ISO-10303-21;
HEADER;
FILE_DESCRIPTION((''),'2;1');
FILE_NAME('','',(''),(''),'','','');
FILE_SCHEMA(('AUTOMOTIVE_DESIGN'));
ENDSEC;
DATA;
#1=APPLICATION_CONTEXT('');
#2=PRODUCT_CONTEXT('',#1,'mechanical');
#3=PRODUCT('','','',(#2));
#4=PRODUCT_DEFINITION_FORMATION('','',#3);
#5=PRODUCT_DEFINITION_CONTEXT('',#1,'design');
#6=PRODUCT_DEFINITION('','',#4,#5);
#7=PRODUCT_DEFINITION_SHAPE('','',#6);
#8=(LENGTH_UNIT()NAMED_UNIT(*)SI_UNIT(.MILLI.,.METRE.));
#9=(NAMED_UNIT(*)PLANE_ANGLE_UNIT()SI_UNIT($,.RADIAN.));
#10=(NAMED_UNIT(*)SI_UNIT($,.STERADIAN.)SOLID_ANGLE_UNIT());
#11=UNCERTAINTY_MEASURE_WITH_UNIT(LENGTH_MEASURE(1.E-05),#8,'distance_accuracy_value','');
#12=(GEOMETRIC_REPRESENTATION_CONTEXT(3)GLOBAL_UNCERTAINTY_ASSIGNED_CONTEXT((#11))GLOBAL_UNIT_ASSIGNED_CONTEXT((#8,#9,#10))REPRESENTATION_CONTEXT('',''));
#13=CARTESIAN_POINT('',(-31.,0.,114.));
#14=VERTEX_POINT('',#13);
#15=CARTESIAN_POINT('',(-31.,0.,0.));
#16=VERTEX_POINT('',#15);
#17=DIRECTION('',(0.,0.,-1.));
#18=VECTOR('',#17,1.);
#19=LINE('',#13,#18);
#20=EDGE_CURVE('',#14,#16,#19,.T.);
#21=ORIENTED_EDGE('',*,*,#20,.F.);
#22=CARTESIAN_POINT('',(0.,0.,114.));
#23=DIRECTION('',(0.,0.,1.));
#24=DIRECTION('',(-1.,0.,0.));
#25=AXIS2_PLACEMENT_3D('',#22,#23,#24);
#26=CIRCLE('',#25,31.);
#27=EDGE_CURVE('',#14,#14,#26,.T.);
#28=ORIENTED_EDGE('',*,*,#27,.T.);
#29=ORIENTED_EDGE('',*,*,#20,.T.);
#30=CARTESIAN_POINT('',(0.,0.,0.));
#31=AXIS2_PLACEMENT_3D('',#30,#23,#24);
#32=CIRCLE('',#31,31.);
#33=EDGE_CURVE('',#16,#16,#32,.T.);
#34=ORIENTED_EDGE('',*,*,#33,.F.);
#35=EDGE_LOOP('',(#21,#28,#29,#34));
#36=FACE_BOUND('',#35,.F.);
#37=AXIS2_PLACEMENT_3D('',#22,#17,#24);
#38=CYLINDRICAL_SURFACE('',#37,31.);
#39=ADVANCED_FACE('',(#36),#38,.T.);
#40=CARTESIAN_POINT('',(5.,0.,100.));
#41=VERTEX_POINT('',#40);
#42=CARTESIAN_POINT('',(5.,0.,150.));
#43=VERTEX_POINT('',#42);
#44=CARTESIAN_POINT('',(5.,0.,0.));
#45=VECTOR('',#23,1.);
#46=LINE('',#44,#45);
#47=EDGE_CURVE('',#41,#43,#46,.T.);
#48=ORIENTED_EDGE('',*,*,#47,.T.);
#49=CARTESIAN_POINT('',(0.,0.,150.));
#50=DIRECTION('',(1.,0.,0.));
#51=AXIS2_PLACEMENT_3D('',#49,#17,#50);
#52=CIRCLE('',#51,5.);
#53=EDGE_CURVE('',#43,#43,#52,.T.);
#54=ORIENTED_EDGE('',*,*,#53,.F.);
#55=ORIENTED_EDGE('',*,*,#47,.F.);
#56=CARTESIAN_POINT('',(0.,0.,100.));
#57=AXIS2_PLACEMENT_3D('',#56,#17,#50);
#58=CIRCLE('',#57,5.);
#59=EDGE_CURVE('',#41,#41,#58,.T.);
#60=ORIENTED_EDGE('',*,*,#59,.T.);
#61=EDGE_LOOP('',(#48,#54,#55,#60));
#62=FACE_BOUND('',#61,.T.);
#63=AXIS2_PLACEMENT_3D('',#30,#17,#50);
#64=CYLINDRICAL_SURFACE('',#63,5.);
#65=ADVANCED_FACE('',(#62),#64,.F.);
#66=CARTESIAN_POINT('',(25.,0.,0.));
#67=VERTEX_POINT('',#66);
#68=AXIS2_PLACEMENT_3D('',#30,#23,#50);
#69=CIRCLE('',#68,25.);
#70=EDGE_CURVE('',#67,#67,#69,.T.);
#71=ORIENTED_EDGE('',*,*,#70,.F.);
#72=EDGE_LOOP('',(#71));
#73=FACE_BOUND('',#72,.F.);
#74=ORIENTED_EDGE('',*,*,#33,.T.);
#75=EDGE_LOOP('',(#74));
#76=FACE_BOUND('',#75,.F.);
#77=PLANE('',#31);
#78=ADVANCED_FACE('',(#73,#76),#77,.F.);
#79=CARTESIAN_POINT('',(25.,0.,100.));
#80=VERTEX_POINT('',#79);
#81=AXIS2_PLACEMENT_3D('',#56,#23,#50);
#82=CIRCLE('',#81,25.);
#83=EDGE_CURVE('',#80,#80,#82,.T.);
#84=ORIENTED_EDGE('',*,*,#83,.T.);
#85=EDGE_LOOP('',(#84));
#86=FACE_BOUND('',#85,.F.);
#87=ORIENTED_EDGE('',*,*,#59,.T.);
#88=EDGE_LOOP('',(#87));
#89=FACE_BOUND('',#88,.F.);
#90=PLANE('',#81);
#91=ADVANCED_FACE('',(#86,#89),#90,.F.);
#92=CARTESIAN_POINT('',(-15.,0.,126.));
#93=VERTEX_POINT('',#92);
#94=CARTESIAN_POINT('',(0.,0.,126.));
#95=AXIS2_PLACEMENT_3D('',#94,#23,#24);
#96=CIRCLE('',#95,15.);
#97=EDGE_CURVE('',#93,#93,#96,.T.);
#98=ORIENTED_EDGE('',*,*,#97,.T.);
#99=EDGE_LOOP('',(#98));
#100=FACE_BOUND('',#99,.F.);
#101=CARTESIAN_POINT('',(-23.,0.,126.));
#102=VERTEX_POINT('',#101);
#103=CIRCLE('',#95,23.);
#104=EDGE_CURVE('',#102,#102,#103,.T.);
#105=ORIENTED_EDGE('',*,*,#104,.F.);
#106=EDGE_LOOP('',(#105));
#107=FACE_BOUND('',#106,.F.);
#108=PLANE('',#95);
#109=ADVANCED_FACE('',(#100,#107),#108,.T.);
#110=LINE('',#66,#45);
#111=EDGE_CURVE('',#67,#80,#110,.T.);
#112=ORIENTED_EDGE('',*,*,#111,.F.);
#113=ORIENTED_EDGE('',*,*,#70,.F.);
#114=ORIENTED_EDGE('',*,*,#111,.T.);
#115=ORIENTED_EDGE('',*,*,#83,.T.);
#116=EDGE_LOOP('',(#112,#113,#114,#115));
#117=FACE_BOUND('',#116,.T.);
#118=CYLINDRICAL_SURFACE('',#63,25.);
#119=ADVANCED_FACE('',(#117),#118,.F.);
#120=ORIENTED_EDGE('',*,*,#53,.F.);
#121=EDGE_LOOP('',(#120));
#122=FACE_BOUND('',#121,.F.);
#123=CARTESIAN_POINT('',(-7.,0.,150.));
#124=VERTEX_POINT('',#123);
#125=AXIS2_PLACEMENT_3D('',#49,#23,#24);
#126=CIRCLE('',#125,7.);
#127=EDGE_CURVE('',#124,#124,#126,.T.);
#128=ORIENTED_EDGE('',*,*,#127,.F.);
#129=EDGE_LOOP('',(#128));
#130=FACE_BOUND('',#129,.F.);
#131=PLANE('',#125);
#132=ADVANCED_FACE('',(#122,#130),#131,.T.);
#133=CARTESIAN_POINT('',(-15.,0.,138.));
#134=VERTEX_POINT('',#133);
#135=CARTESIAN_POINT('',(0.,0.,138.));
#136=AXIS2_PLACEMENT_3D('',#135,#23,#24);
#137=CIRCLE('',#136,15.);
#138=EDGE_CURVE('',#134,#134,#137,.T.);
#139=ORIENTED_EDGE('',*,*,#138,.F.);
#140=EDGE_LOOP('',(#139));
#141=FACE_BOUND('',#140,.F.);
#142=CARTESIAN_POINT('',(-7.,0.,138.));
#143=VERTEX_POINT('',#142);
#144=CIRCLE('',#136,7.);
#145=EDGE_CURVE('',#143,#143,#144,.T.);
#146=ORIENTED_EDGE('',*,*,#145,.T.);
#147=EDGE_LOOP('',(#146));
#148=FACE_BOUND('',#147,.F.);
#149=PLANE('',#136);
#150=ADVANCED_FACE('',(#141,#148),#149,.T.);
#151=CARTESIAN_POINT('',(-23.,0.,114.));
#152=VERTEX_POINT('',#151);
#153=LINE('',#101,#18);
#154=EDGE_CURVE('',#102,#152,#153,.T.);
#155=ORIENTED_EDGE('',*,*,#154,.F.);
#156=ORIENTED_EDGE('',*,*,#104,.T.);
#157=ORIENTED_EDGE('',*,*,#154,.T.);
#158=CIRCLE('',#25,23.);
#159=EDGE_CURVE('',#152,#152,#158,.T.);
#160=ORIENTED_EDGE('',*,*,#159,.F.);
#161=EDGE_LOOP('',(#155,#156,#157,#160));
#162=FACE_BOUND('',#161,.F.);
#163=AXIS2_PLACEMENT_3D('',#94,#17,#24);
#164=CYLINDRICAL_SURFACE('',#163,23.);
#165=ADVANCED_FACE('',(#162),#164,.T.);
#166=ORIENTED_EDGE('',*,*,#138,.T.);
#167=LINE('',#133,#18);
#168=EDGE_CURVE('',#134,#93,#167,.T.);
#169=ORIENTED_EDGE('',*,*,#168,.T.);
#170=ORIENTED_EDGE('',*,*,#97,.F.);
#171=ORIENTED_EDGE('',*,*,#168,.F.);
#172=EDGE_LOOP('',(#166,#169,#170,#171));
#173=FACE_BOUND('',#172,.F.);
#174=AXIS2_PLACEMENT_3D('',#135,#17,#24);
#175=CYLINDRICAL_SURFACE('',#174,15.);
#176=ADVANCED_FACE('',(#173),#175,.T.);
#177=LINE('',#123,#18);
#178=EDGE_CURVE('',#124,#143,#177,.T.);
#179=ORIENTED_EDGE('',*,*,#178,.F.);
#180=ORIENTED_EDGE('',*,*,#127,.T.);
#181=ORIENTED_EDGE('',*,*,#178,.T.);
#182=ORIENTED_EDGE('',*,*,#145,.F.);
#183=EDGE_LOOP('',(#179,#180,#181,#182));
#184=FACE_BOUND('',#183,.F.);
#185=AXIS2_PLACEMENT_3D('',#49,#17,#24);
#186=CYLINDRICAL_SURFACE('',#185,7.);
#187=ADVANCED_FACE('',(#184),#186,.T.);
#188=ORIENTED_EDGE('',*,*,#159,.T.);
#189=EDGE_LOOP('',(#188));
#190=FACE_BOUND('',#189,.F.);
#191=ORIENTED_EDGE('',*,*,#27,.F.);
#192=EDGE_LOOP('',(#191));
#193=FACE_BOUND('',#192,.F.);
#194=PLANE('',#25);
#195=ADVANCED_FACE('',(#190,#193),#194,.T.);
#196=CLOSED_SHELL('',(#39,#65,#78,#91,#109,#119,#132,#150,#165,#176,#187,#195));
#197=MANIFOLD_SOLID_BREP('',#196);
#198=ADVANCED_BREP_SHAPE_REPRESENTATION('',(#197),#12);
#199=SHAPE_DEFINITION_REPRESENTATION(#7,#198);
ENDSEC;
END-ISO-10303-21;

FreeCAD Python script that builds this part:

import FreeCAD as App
import Part
import Sketcher
Q = App.Units.Quantity

doc = App.newDocument("Part")
params = doc.addObject("Spreadsheet::Sheet", "Params")
for row, (alias, value) in enumerate([
    ("sketch1_width", "31 mm"),
    ("sketch1_width2", "7 mm"),
    ("sketch1_height", "150 mm"),
    ("sketch1_height2", "12 mm"),
    ("revolution_angle", "360 deg"),
    ("sketch2_diameter", "50 mm"),
    ("pocket1_length", "100 mm"),
    ("sketch3_diameter", "10 mm"),
], start=1):
    params.set(f"A{row}", alias)
    params.set(f"B{row}", "=" + value)
    params.setAlias(f"B{row}", alias)

body = doc.addObject("PartDesign::Body", "Body")

sketch1 = body.newObject("Sketcher::SketchObject", "Sketch")
sketch1.AttachmentSupport = (doc.getObject("XZ_Plane"), [""])
sketch1.MapMode = "FlatFace"
sketch1.addGeometry([
    Part.LineSegment(App.Vector(-31, 0, 0), App.Vector(0, 0, 0)),
    Part.LineSegment(App.Vector(0, 0, 0), App.Vector(0, 150, 0)),
    Part.LineSegment(App.Vector(0, 150, 0), App.Vector(-7, 150, 0)),
    Part.LineSegment(App.Vector(-7, 150, 0), App.Vector(-7, 138, 0)),
    Part.LineSegment(App.Vector(-7, 138, 0), App.Vector(-15, 138, 0)),
    Part.LineSegment(App.Vector(-15, 138, 0), App.Vector(-15, 126, 0)),
    Part.LineSegment(App.Vector(-15, 126, 0), App.Vector(-23, 126, 0)),
    Part.LineSegment(App.Vector(-23, 126, 0), App.Vector(-23, 114, 0)),
    Part.LineSegment(App.Vector(-23, 114, 0), App.Vector(-31, 114, 0)),
    Part.LineSegment(App.Vector(-31, 114, 0), App.Vector(-31, 0, 0)),
], False)
sketch1.addConstraint([
    Sketcher.Constraint("Coincident", 0, 2, 1, 1),
    Sketcher.Constraint("Coincident", 1, 2, 2, 1),
    Sketcher.Constraint("Coincident", 2, 2, 3, 1),
    Sketcher.Constraint("Coincident", 3, 2, 4, 1),
    Sketcher.Constraint("Coincident", 4, 2, 5, 1),
    Sketcher.Constraint("Coincident", 5, 2, 6, 1),
    Sketcher.Constraint("Coincident", 6, 2, 7, 1),
    Sketcher.Constraint("Coincident", 7, 2, 8, 1),
    Sketcher.Constraint("Coincident", 8, 2, 9, 1),
    Sketcher.Constraint("Coincident", 9, 2, 0, 1),
    Sketcher.Constraint("Horizontal", 0),
    Sketcher.Constraint("Vertical", 1),
    Sketcher.Constraint("Horizontal", 2),
    Sketcher.Constraint("Vertical", 3),
    Sketcher.Constraint("Horizontal", 4),
    Sketcher.Constraint("Vertical", 5),
    Sketcher.Constraint("Horizontal", 6),
    Sketcher.Constraint("Vertical", 7),
    Sketcher.Constraint("Horizontal", 8),
    Sketcher.Constraint("Vertical", 9),
    Sketcher.Constraint("Coincident", 0, 2, -1, 1),
    Sketcher.Constraint("Equal", 4, 6),
    Sketcher.Constraint("Equal", 6, 8),
    Sketcher.Constraint("Equal", 3, 5),
    Sketcher.Constraint("Equal", 5, 7),
    Sketcher.Constraint("DistanceX", 0, 1, 0, 2, Q("31 mm")),
    Sketcher.Constraint("DistanceX", 2, 2, 2, 1, Q("7 mm")),
    Sketcher.Constraint("DistanceY", 1, 1, 1, 2, Q("150 mm")),
    Sketcher.Constraint("DistanceY", 3, 2, 3, 1, Q("12 mm")),
])
sketch1.setExpression("Constraints[25]", "Params.sketch1_width")
sketch1.setExpression("Constraints[26]", "Params.sketch1_width2")
sketch1.setExpression("Constraints[27]", "Params.sketch1_height")
sketch1.setExpression("Constraints[28]", "Params.sketch1_height2")
revolution = body.newObject("PartDesign::Revolution", "Revolution")
revolution.Profile = sketch1
revolution.ReferenceAxis = (sketch1, ["V_Axis"])
revolution.setExpression("Angle", "Params.revolution_angle")

sketch2 = body.newObject("Sketcher::SketchObject", "Sketch001")
sketch2.AttachmentSupport = (doc.getObject("XY_Plane"), [""])
sketch2.MapMode = "FlatFace"
sketch2.addGeometry(Part.Circle(App.Vector(0, 0, 0), App.Vector(0, 0, 1), 25), False)
sketch2.addConstraint([
    Sketcher.Constraint("Coincident", 0, 3, -1, 1),
    Sketcher.Constraint("Diameter", 0, Q("50 mm")),
])
sketch2.setExpression("Constraints[1]", "Params.sketch2_diameter")
pocket1 = body.newObject("PartDesign::Pocket", "Pocket")
pocket1.Profile = sketch2
pocket1.setExpression("Length", "Params.pocket1_length")
pocket1.Reversed = True

sketch3 = body.newObject("Sketcher::SketchObject", "Sketch002")
sketch3.AttachmentSupport = (doc.getObject("XY_Plane"), [""])
sketch3.MapMode = "FlatFace"
sketch3.addGeometry(Part.Circle(App.Vector(0, 0, 0), App.Vector(0, 0, 1), 5), False)
sketch3.addConstraint([
    Sketcher.Constraint("Coincident", 0, 3, -1, 1),
    Sketcher.Constraint("Diameter", 0, Q("10 mm")),
])
sketch3.setExpression("Constraints[1]", "Params.sketch3_diameter")
pocket2 = body.newObject("PartDesign::Pocket", "Pocket001")
pocket2.Profile = sketch3
pocket2.Type = "ThroughAll"
pocket2.Reversed = True

doc.recompute()
